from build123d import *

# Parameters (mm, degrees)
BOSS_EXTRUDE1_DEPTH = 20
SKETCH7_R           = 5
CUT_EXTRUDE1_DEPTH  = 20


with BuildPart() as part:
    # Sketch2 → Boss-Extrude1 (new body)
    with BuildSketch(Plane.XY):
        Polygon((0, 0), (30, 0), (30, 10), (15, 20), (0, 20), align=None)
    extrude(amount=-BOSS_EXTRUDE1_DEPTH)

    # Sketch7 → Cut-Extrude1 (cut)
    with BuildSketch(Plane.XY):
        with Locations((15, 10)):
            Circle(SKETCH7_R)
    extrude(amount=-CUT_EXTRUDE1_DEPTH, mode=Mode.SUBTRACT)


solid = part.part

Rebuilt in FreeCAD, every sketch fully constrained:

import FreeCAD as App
import Part
import Sketcher
from FreeCAD import Vector

doc = App.newDocument("Part")
params = doc.addObject("Spreadsheet::Sheet", "Params")
for row, (alias, value) in enumerate([
    ("sketch1_width", "30 mm"),
    ("sketch1_width2", "15 mm"),
    ("sketch1_height", "10 mm"),
    ("sketch1_height2", "20 mm"),
    ("pad1_length", "20 mm"),
    ("sketch2_diameter", "10 mm"),
    ("pocket1_length", "20 mm"),
], start=1):
    params.set(f"A{row}", alias)
    params.set(f"B{row}", "=" + value)
    params.setAlias(f"B{row}", alias)

body = doc.addObject("PartDesign::Body", "Body")

# Sketch on XY plane
sketch1 = doc.addObject("Sketcher::SketchObject", "Sketch")
body.addObject(sketch1)
sketch1.AttachmentSupport = (doc.XY_Plane, [""])
sketch1.MapMode = "FlatFace"
sketch1.addGeometry([
    Part.LineSegment(Vector(0, 0, 0), Vector(30, 0, 0)),  # 0
    Part.LineSegment(Vector(30, 0, 0), Vector(30, 10, 0)),  # 1
    Part.LineSegment(Vector(30, 10, 0), Vector(15, 20, 0)),  # 2
    Part.LineSegment(Vector(15, 20, 0), Vector(0, 20, 0)),  # 3
    Part.LineSegment(Vector(0, 20, 0), Vector(0, 0, 0)),  # 4
], False)
sketch1.addConstraint([
    Sketcher.Constraint("Coincident", 0, 2, 1, 1),
    Sketcher.Constraint("Coincident", 1, 2, 2, 1),
    Sketcher.Constraint("Coincident", 2, 2, 3, 1),
    Sketcher.Constraint("Coincident", 3, 2, 4, 1),
    Sketcher.Constraint("Coincident", 4, 2, 0, 1),
    Sketcher.Constraint("Horizontal", 0),
    Sketcher.Constraint("Vertical", 1),
    Sketcher.Constraint("Horizontal", 3),
    Sketcher.Constraint("Vertical", 4),
    Sketcher.Constraint("Coincident", 4, 2, -1, 1),
    Sketcher.Constraint("DistanceX", 0, 1, 0, 2, 30.0),
    Sketcher.Constraint("DistanceX", 3, 2, 3, 1, 15.0),
    Sketcher.Constraint("DistanceY", 1, 1, 1, 2, 10.0),
    Sketcher.Constraint("DistanceY", 4, 2, 4, 1, 20.0),
])
sketch1.setExpression("Constraints[10]", "Params.sketch1_width")
sketch1.setExpression("Constraints[11]", "Params.sketch1_width2")
sketch1.setExpression("Constraints[12]", "Params.sketch1_height")
sketch1.setExpression("Constraints[13]", "Params.sketch1_height2")
pad1 = doc.addObject("PartDesign::Pad", "Pad")
body.addObject(pad1)
pad1.Profile = sketch1
pad1.setExpression("Length", "Params.pad1_length")
pad1.Reversed = True

# Sketch on XY plane
sketch2 = doc.addObject("Sketcher::SketchObject", "Sketch001")
body.addObject(sketch2)
sketch2.AttachmentSupport = (doc.XY_Plane, [""])
sketch2.MapMode = "FlatFace"
sketch2.addGeometry(Part.Circle(Vector(15, 10, 0), Vector(0, 0, 1), 5), False)
sketch2.addConstraint([
    Sketcher.Constraint("Diameter", 0, 10.0),
    Sketcher.Constraint("DistanceX", -1, 1, 0, 3, 15.0),
    Sketcher.Constraint("DistanceY", -1, 1, 0, 3, 10.0),
])
sketch2.setExpression("Constraints[0]", "Params.sketch2_diameter")
pocket1 = doc.addObject("PartDesign::Pocket", "Pocket")
body.addObject(pocket1)
pocket1.Profile = sketch2
pocket1.setExpression("Length", "Params.pocket1_length")

doc.recompute()
